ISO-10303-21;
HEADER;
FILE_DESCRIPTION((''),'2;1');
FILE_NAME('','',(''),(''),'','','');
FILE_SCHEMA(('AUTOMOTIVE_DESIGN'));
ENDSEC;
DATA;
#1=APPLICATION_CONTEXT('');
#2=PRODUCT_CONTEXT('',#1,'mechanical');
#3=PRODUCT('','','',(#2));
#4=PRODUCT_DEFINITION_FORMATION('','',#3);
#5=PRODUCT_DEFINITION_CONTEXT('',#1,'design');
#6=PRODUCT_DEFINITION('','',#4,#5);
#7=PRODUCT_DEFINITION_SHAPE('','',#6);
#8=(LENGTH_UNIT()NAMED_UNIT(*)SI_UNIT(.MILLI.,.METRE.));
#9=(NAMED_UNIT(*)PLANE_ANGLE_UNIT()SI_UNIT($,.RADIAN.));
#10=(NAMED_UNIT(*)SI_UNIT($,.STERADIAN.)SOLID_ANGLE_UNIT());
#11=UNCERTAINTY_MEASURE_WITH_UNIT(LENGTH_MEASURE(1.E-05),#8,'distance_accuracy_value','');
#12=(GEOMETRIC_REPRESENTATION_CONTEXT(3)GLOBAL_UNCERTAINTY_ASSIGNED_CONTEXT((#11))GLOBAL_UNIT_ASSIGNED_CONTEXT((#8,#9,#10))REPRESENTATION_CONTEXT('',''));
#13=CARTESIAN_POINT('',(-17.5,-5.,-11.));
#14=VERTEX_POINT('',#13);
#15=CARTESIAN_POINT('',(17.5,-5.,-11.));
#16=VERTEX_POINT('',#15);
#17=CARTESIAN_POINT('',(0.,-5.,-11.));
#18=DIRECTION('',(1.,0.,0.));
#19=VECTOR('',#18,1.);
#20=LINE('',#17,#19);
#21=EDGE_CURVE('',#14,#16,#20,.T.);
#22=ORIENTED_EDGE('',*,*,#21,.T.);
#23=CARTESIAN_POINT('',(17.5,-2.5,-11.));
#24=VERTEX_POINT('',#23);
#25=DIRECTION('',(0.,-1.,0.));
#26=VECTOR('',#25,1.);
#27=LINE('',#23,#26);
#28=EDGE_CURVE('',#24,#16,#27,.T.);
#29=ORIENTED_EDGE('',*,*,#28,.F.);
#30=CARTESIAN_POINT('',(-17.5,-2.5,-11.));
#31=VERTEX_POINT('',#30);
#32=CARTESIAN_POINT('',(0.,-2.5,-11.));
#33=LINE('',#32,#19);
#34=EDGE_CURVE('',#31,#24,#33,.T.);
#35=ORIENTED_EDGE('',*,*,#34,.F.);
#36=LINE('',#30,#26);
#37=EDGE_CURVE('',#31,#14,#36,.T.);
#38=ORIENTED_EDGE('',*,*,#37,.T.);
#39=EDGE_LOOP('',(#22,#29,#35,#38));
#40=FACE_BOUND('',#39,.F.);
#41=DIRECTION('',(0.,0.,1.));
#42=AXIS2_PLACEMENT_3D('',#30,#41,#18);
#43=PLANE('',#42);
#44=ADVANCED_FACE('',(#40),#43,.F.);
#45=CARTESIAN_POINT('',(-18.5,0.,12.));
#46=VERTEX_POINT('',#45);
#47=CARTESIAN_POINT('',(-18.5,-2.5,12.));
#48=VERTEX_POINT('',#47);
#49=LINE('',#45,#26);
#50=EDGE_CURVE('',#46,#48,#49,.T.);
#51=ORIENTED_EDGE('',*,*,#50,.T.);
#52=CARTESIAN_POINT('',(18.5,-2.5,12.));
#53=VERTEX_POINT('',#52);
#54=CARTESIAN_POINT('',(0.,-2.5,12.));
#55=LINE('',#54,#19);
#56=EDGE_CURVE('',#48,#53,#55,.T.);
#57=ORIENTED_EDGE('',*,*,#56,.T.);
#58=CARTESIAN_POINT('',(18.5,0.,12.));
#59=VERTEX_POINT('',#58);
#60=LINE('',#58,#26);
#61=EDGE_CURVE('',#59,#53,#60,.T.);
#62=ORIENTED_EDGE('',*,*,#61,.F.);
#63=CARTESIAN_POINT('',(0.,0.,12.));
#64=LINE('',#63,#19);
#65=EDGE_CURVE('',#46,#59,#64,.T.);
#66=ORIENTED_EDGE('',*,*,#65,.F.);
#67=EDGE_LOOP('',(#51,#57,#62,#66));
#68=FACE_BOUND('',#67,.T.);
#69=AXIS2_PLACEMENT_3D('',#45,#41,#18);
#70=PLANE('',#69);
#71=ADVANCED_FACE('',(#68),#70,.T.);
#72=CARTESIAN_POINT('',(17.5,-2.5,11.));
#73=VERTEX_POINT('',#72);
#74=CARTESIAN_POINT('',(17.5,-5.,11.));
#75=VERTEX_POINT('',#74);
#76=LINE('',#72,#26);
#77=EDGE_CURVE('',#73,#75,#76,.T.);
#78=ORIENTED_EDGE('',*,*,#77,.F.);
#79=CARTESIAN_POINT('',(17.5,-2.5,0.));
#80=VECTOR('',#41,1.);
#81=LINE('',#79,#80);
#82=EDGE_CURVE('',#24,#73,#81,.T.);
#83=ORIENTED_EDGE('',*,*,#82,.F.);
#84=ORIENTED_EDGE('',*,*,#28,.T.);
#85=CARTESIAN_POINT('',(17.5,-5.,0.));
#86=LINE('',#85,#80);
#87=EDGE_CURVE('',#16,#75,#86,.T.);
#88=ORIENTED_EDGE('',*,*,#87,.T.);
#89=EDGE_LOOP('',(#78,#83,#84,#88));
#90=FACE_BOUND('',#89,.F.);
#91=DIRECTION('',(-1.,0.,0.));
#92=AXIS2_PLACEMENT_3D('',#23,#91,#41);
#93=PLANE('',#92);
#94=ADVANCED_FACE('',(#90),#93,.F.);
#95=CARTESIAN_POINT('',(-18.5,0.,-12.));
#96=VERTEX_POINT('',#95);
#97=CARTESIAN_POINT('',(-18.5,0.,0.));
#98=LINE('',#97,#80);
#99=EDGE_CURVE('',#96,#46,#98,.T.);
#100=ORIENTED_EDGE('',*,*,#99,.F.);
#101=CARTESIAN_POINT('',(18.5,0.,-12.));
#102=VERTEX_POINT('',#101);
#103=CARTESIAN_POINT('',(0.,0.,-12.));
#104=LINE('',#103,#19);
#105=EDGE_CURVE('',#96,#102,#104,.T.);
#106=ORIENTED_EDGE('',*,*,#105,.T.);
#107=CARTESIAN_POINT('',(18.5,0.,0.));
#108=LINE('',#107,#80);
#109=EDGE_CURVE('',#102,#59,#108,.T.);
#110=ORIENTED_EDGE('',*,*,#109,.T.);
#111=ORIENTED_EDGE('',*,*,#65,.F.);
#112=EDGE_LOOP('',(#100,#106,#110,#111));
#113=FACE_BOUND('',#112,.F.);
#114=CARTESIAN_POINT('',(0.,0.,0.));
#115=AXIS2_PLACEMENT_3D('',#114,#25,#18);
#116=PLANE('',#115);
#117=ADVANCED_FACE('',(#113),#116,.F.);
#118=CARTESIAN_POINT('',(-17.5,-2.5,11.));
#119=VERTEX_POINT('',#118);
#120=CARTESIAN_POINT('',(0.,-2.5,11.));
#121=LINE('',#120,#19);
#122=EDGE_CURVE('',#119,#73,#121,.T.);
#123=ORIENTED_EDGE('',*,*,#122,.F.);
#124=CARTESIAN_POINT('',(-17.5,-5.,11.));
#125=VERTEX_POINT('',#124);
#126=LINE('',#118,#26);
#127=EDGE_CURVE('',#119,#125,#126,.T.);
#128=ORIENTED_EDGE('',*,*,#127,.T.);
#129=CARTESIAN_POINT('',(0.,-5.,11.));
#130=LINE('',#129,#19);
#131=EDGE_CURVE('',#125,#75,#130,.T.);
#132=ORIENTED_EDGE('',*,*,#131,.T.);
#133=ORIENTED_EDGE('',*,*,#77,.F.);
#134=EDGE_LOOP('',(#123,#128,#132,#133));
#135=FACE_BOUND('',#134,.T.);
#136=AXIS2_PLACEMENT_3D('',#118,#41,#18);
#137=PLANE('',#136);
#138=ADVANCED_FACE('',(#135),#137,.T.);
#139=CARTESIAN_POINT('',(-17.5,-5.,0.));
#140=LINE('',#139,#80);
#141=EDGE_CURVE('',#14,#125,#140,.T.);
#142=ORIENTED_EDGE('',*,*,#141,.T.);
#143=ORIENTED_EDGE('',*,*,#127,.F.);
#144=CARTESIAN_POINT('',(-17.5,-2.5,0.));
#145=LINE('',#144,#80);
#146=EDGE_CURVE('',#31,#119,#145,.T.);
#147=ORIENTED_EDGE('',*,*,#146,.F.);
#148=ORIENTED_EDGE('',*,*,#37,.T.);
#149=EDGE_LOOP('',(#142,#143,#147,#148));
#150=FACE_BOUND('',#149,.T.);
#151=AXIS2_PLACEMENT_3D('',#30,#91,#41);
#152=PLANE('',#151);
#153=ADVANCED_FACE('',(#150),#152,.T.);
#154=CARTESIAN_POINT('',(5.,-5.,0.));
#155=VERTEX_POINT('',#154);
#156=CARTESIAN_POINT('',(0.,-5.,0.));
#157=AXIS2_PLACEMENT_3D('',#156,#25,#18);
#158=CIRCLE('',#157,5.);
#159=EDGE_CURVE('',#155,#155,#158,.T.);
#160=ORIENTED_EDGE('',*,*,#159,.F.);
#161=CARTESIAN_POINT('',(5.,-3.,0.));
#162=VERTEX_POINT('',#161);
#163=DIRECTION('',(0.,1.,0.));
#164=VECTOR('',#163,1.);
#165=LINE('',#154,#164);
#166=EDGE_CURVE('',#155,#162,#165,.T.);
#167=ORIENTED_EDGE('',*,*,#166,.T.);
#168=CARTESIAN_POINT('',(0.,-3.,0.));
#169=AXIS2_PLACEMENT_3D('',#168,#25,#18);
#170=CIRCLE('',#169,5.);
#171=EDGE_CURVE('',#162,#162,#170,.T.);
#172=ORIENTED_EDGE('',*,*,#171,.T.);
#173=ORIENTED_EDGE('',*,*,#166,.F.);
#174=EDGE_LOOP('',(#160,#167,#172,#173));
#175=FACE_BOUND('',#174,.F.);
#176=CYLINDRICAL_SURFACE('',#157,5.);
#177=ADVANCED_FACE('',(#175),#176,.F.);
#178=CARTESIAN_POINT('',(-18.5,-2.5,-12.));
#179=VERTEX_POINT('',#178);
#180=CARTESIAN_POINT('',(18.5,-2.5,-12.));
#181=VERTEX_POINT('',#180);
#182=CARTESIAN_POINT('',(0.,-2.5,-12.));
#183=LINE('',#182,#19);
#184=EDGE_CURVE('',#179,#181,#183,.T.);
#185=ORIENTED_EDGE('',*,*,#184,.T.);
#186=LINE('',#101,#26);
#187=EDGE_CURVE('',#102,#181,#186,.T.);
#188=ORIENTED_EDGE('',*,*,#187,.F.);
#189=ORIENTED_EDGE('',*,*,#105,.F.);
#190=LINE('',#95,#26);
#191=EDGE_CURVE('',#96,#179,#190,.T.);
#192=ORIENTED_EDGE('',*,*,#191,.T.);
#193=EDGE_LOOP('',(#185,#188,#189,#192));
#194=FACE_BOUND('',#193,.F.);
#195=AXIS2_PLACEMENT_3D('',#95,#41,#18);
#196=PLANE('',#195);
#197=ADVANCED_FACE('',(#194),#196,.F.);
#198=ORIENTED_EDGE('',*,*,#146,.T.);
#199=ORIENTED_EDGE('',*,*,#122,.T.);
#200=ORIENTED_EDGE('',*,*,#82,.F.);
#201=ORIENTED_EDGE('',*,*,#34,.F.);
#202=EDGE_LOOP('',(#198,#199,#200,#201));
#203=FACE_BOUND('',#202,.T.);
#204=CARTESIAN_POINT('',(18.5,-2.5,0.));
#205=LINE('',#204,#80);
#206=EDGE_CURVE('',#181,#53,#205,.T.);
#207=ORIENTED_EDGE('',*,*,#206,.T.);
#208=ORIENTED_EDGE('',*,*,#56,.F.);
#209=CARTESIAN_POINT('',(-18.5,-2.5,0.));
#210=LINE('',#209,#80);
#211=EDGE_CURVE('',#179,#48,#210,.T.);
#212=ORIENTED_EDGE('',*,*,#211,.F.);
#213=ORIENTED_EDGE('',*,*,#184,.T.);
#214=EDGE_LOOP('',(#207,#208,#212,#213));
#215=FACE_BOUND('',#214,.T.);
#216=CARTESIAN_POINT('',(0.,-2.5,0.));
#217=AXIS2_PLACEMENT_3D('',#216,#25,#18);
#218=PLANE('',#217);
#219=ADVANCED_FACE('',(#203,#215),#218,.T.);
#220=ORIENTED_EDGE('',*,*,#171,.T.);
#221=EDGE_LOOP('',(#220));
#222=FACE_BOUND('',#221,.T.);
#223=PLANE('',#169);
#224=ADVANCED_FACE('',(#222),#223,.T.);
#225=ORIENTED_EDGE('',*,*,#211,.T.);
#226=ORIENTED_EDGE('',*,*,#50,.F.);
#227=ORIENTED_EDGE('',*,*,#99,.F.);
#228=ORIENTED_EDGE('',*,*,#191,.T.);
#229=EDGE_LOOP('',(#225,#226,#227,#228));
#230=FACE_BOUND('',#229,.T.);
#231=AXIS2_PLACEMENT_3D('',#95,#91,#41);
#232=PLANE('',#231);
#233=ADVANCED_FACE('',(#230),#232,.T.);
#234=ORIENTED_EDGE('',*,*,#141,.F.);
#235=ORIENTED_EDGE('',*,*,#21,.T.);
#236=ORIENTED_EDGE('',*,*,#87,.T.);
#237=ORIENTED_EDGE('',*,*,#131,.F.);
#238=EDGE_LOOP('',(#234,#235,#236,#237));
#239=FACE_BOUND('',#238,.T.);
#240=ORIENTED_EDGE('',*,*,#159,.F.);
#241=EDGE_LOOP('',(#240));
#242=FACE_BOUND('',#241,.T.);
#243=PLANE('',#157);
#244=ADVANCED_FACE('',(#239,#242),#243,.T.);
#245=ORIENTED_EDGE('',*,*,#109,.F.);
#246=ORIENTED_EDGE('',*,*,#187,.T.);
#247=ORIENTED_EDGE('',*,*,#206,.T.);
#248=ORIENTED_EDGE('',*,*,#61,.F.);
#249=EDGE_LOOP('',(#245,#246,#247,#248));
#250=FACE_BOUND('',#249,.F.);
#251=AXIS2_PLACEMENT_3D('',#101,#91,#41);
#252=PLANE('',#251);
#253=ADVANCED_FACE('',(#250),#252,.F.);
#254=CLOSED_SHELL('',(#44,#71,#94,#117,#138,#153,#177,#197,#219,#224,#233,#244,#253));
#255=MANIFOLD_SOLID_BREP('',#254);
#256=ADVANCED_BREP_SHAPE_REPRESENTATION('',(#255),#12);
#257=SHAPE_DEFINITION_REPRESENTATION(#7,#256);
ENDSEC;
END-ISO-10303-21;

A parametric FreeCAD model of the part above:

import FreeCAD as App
import Part
import Sketcher
Q = App.Units.Quantity

doc = App.newDocument("Part")
body = doc.addObject("PartDesign::Body", "Body")

# Sketch on XZ plane
sketch1 = doc.addObject("Sketcher::SketchObject", "Sketch")
body.addObject(sketch1)
sketch1.AttachmentSupport = (doc.XZ_Plane, [""])
sketch1.MapMode = "FlatFace"
sketch1.addGeometry(Part.LineSegment(App.Vector(-18, 12, 0), App.Vector(-18, -12, 0)), False)
sketch1.addGeometry(Part.LineSegment(App.Vector(-18, -12, 0), App.Vector(18, -12, 0)), False)
sketch1.addGeometry(Part.LineSegment(App.Vector(18, -12, 0), App.Vector(18, 12, 0)), False)
sketch1.addGeometry(Part.LineSegment(App.Vector(18, 12, 0), App.Vector(-18, 12, 0)), False)
sketch1.addConstraint(Sketcher.Constraint("Coincident", 0, 2, 1, 1))
sketch1.addConstraint(Sketcher.Constraint("Coincident", 1, 2, 2, 1))
sketch1.addConstraint(Sketcher.Constraint("Coincident", 2, 2, 3, 1))
sketch1.addConstraint(Sketcher.Constraint("Coincident", 3, 2, 0, 1))
sketch1.addConstraint(Sketcher.Constraint("Vertical", 0))
sketch1.addConstraint(Sketcher.Constraint("Horizontal", 1))
sketch1.addConstraint(Sketcher.Constraint("Vertical", 2))
sketch1.addConstraint(Sketcher.Constraint("Horizontal", 3))
sketch1.addConstraint(Sketcher.Constraint("Symmetric", 0, 2, 2, 2, -1, 1))
sketch1.addConstraint(Sketcher.Constraint("DistanceX", 1, 1, 1, 2, Q("37 mm")))
sketch1.addConstraint(Sketcher.Constraint("DistanceY", 0, 2, 0, 1, Q("24 mm")))
pad1 = doc.addObject("PartDesign::Pad", "Pad")
body.addObject(pad1)
pad1.Profile = sketch1
pad1.Length = 2.5

# Sketch on XZ plane
sketch2 = doc.addObject("Sketcher::SketchObject", "Sketch001")
body.addObject(sketch2)
sketch2.AttachmentSupport = (doc.XZ_Plane, [""])
sketch2.MapMode = "FlatFace"
sketch2.AttachmentOffset = App.Placement(App.Vector(0, 0, 2.5), App.Rotation())
sketch2.addGeometry(Part.LineSegment(App.Vector(-18, 11, 0), App.Vector(-18, -11, 0)), False)
sketch2.addGeometry(Part.LineSegment(App.Vector(-18, -11, 0), App.Vector(18, -11, 0)), False)
sketch2.addGeometry(Part.LineSegment(App.Vector(18, -11, 0), App.Vector(18, 11, 0)), False)
sketch2.addGeometry(Part.LineSegment(App.Vector(18, 11, 0), App.Vector(-18, 11, 0)), False)
sketch2.addConstraint(Sketcher.Constraint("Coincident", 0, 2, 1, 1))
sketch2.addConstraint(Sketcher.Constraint("Coincident", 1, 2, 2, 1))
sketch2.addConstraint(Sketcher.Constraint("Coincident", 2, 2, 3, 1))
sketch2.addConstraint(Sketcher.Constraint("Coincident", 3, 2, 0, 1))
sketch2.addConstraint(Sketcher.Constraint("Vertical", 0))
sketch2.addConstraint(Sketcher.Constraint("Horizontal", 1))
sketch2.addConstraint(Sketcher.Constraint("Vertical", 2))
sketch2.addConstraint(Sketcher.Constraint("Horizontal", 3))
sketch2.addConstraint(Sketcher.Constraint("Symmetric", 0, 2, 2, 2, -1, 1))
sketch2.addConstraint(Sketcher.Constraint("DistanceX", 1, 1, 1, 2, Q("35 mm")))
sketch2.addConstraint(Sketcher.Constraint("DistanceY", 0, 2, 0, 1, Q("22 mm")))
pad2 = doc.addObject("PartDesign::Pad", "Pad001")
body.addObject(pad2)
pad2.Profile = sketch2
pad2.Length = 2.5

# Sketch on XZ plane
sketch3 = doc.addObject("Sketcher::SketchObject", "Sketch002")
body.addObject(sketch3)
sketch3.AttachmentSupport = (doc.XZ_Plane, [""])
sketch3.MapMode = "FlatFace"
sketch3.AttachmentOffset = App.Placement(App.Vector(0, 0, 5), App.Rotation())
sketch3.addGeometry(Part.Circle(App.Vector(0, 0, 0), App.Vector(0, 0, 1), 5), False)
sketch3.addConstraint(Sketcher.Constraint("Coincident", 0, 3, -1, 1))
sketch3.addConstraint(Sketcher.Constraint("Diameter", 0, Q("10 mm")))
pocket1 = doc.addObject("PartDesign::Pocket", "Pocket")
body.addObject(pocket1)
pocket1.Profile = sketch3
pocket1.Length = 2

doc.recompute()
